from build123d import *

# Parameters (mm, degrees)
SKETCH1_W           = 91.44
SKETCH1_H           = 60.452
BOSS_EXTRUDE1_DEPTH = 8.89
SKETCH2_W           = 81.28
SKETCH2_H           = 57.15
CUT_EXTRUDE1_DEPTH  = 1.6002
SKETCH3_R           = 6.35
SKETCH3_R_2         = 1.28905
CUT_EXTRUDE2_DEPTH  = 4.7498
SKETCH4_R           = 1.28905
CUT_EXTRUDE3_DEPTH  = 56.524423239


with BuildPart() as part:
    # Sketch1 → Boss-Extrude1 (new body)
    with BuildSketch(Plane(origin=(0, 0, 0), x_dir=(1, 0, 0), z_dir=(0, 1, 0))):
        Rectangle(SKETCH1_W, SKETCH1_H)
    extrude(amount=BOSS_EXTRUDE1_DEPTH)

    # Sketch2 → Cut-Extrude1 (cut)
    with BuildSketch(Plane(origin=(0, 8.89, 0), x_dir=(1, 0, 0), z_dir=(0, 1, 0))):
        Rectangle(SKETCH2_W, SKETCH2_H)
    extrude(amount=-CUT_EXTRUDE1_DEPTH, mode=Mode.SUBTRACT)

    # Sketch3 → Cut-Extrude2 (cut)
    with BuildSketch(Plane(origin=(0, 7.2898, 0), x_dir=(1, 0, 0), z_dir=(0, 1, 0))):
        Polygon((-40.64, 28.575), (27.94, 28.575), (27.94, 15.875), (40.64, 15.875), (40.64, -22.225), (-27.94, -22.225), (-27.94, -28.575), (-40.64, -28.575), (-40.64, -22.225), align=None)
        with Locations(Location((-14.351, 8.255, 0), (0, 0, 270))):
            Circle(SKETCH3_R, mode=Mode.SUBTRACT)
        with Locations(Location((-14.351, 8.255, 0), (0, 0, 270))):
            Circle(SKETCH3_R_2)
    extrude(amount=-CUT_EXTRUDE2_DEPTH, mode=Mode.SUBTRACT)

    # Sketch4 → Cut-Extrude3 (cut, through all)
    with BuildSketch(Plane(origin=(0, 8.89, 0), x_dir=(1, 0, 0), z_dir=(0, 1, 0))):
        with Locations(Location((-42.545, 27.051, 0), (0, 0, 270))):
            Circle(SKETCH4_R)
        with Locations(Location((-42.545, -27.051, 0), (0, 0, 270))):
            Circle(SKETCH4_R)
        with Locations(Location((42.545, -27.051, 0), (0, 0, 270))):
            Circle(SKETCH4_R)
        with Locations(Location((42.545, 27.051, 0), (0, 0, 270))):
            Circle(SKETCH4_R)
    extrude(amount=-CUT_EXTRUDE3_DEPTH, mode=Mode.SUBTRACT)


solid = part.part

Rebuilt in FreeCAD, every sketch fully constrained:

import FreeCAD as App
import Part
import Sketcher
Q = App.Units.Quantity

doc = App.newDocument("Part")
body = doc.addObject("PartDesign::Body", "Body")

sketch1 = body.newObject("Sketcher::SketchObject", "Sketch")
sketch1.AttachmentSupport = (doc.getObject("XZ_Plane"), [""])
sketch1.MapMode = "FlatFace"
sketch1.addGeometry([
    Part.LineSegment(App.Vector(-45.72, -30.226, 0), App.Vector(-45.72, 30.226, 0)),
    Part.LineSegment(App.Vector(-45.72, 30.226, 0), App.Vector(45.72, 30.226, 0)),
    Part.LineSegment(App.Vector(45.72, 30.226, 0), App.Vector(45.72, -30.226, 0)),
    Part.LineSegment(App.Vector(45.72, -30.226, 0), App.Vector(-45.72, -30.226, 0)),
], False)
sketch1.addConstraint([
    Sketcher.Constraint("Coincident", 0, 2, 1, 1),
    Sketcher.Constraint("Coincident", 1, 2, 2, 1),
    Sketcher.Constraint("Coincident", 2, 2, 3, 1),
    Sketcher.Constraint("Coincident", 3, 2, 0, 1),
    Sketcher.Constraint("Vertical", 0),
    Sketcher.Constraint("Horizontal", 1),
    Sketcher.Constraint("Vertical", 2),
    Sketcher.Constraint("Horizontal", 3),
    Sketcher.Constraint("Symmetric", 0, 2, 2, 2, -1, 1),
    Sketcher.Constraint("DistanceX", 1, 1, 1, 2, Q("3.6 in")),
    Sketcher.Constraint("DistanceY", 0, 1, 0, 2, Q("2.38 in")),
])
pad1 = body.newObject("PartDesign::Pad", "Pad")
pad1.Profile = sketch1
pad1.Length = Q("0.35 in")
pad1.Reversed = True

sketch2 = body.newObject("Sketcher::SketchObject", "Sketch001")
sketch2.AttachmentSupport = (doc.getObject("XZ_Plane"), [""])
sketch2.MapMode = "FlatFace"
sketch2.AttachmentOffset = App.Placement(App.Vector(0, 0, -0.35 * 25.4), App.Rotation())
sketch2.addGeometry([
    Part.LineSegment(App.Vector(-40.64, -28.575, 0), App.Vector(-40.64, 28.575, 0)),
    Part.LineSegment(App.Vector(-40.64, 28.575, 0), App.Vector(40.64, 28.575, 0)),
    Part.LineSegment(App.Vector(40.64, 28.575, 0), App.Vector(40.64, -28.575, 0)),
    Part.LineSegment(App.Vector(40.64, -28.575, 0), App.Vector(-40.64, -28.575, 0)),
], False)
sketch2.addConstraint([
    Sketcher.Constraint("Coincident", 0, 2, 1, 1),
    Sketcher.Constraint("Coincident", 1, 2, 2, 1),
    Sketcher.Constraint("Coincident", 2, 2, 3, 1),
    Sketcher.Constraint("Coincident", 3, 2, 0, 1),
    Sketcher.Constraint("Vertical", 0),
    Sketcher.Constraint("Horizontal", 1),
    Sketcher.Constraint("Vertical", 2),
    Sketcher.Constraint("Horizontal", 3),
    Sketcher.Constraint("Symmetric", 0, 2, 2, 2, -1, 1),
    Sketcher.Constraint("DistanceX", 1, 1, 1, 2, Q("3.2 in")),
    Sketcher.Constraint("DistanceY", 0, 1, 0, 2, Q("2.25 in")),
])
pocket1 = body.newObject("PartDesign::Pocket", "Pocket")
pocket1.Profile = sketch2
pocket1.Length = Q("0.063 in")
pocket1.Reversed = True

sketch3 = body.newObject("Sketcher::SketchObject", "Sketch002")
sketch3.AttachmentSupport = (doc.getObject("XZ_Plane"), [""])
sketch3.MapMode = "FlatFace"
sketch3.AttachmentOffset = App.Placement(App.Vector(0, 0, -0.287 * 25.4), App.Rotation())
sketch3.addGeometry([
    Part.LineSegment(App.Vector(27.94, -28.575, 0), App.Vector(-40.64, -28.575, 0)),
    Part.LineSegment(App.Vector(-40.64, -28.575, 0), App.Vector(-40.64, 28.575, 0)),
    Part.LineSegment(App.Vector(-40.64, 28.575, 0), App.Vector(-27.94, 28.575, 0)),
    Part.LineSegment(App.Vector(-27.94, 28.575, 0), App.Vector(-27.94, 22.225, 0)),
    Part.LineSegment(App.Vector(-27.94, 22.225, 0), App.Vector(40.64, 22.225, 0)),
    Part.LineSegment(App.Vector(40.64, 22.225, 0), App.Vector(40.64, -15.875, 0)),
    Part.LineSegment(App.Vector(40.64, -15.875, 0), App.Vector(27.94, -15.875, 0)),
    Part.LineSegment(App.Vector(27.94, -15.875, 0), App.Vector(27.94, -28.575, 0)),
    Part.Circle(App.Vector(-14.351, -8.255, 0), App.Vector(0, 0, 1), 6.35),
    Part.Circle(App.Vector(-14.351, -8.255, 0), App.Vector(0, 0, 1), 1.28905),
], False)
sketch3.addConstraint([
    Sketcher.Constraint("Coincident", 0, 2, 1, 1),
    Sketcher.Constraint("Coincident", 1, 2, 2, 1),
    Sketcher.Constraint("Coincident", 2, 2, 3, 1),
    Sketcher.Constraint("Coincident", 3, 2, 4, 1),
    Sketcher.Constraint("Coincident", 4, 2, 5, 1),
    Sketcher.Constraint("Coincident", 5, 2, 6, 1),
    Sketcher.Constraint("Coincident", 6, 2, 7, 1),
    Sketcher.Constraint("Coincident", 7, 2, 0, 1),
    Sketcher.Constraint("Horizontal", 0),
    Sketcher.Constraint("Vertical", 1),
    Sketcher.Constraint("Horizontal", 2),
    Sketcher.Constraint("Vertical", 3),
    Sketcher.Constraint("Horizontal", 4),
    Sketcher.Constraint("Vertical", 5),
    Sketcher.Constraint("Horizontal", 6),
    Sketcher.Constraint("Vertical", 7),
    Sketcher.Constraint("Coincident", 9, 3, 8, 3),
    Sketcher.Constraint("Symmetric", 2, 2, 7, 2, -1, 1),
    Sketcher.Constraint("Equal", 0, 4),
    Sketcher.Constraint("Equal", 6, 7),
    Sketcher.Constraint("Diameter", 8, Q("0.5 in")),
    Sketcher.Constraint("DistanceX", 0, 2, 0, 1, Q("2.7 in")),
    Sketcher.Constraint("DistanceX", 2, 1, 2, 2, Q("0.5 in")),
    Sketcher.Constraint("DistanceY", 5, 2, 5, 1, Q("1.5 in")),
    Sketcher.Constraint("Diameter", 9, Q("0.1015 in")),
    Sketcher.Constraint("DistanceY", 1, 1, 1, 2, Q("2.25 in")),
    Sketcher.Constraint("DistanceY", 0, 2, 8, 3, Q("0.8 in")),
    Sketcher.Constraint("DistanceX", 8, 3, -1, 1, Q("0.565 in")),
])
pocket2 = body.newObject("PartDesign::Pocket", "Pocket001")
pocket2.Profile = sketch3
pocket2.Length = Q("0.187 in")
pocket2.Reversed = True

sketch4 = body.newObject("Sketcher::SketchObject", "Sketch003")
sketch4.AttachmentSupport = (doc.getObject("XZ_Plane"), [""])
sketch4.MapMode = "FlatFace"
sketch4.AttachmentOffset = App.Placement(App.Vector(0, 0, -0.35 * 25.4), App.Rotation())
sketch4.addGeometry([
    Part.Circle(App.Vector(-42.545, -27.051, 0), App.Vector(0, 0, 1), 1.28905),
    Part.Circle(App.Vector(-42.545, 27.051, 0), App.Vector(0, 0, 1), 1.28905),
    Part.Circle(App.Vector(42.545, 27.051, 0), App.Vector(0, 0, 1), 1.28905),
    Part.Circle(App.Vector(42.545, -27.051, 0), App.Vector(0, 0, 1), 1.28905),
], False)
sketch4.addConstraint([
    Sketcher.Constraint("Equal", 0, 1),
    Sketcher.Constraint("Equal", 1, 2),
    Sketcher.Constraint("Equal", 2, 3),
    Sketcher.Constraint("Symmetric", 0, 3, 2, 3, -1, 1),
    Sketcher.Constraint("Symmetric", 1, 3, 3, 3, -1, 1),
    Sketcher.Constraint("Symmetric", 1, 3, 2, 3, -2),
    Sketcher.Constraint("Diameter", 0, Q("0.1015 in")),
    Sketcher.Constraint("DistanceY", 0, 3, 1, 3, Q("2.13 in")),
    Sketcher.Constraint("DistanceX", 1, 3, 2, 3, Q("3.35 in")),
])
pocket3 = body.newObject("PartDesign::Pocket", "Pocket002")
pocket3.Profile = sketch4
pocket3.Type = "ThroughAll"
pocket3.Reversed = True

doc.recompute()
